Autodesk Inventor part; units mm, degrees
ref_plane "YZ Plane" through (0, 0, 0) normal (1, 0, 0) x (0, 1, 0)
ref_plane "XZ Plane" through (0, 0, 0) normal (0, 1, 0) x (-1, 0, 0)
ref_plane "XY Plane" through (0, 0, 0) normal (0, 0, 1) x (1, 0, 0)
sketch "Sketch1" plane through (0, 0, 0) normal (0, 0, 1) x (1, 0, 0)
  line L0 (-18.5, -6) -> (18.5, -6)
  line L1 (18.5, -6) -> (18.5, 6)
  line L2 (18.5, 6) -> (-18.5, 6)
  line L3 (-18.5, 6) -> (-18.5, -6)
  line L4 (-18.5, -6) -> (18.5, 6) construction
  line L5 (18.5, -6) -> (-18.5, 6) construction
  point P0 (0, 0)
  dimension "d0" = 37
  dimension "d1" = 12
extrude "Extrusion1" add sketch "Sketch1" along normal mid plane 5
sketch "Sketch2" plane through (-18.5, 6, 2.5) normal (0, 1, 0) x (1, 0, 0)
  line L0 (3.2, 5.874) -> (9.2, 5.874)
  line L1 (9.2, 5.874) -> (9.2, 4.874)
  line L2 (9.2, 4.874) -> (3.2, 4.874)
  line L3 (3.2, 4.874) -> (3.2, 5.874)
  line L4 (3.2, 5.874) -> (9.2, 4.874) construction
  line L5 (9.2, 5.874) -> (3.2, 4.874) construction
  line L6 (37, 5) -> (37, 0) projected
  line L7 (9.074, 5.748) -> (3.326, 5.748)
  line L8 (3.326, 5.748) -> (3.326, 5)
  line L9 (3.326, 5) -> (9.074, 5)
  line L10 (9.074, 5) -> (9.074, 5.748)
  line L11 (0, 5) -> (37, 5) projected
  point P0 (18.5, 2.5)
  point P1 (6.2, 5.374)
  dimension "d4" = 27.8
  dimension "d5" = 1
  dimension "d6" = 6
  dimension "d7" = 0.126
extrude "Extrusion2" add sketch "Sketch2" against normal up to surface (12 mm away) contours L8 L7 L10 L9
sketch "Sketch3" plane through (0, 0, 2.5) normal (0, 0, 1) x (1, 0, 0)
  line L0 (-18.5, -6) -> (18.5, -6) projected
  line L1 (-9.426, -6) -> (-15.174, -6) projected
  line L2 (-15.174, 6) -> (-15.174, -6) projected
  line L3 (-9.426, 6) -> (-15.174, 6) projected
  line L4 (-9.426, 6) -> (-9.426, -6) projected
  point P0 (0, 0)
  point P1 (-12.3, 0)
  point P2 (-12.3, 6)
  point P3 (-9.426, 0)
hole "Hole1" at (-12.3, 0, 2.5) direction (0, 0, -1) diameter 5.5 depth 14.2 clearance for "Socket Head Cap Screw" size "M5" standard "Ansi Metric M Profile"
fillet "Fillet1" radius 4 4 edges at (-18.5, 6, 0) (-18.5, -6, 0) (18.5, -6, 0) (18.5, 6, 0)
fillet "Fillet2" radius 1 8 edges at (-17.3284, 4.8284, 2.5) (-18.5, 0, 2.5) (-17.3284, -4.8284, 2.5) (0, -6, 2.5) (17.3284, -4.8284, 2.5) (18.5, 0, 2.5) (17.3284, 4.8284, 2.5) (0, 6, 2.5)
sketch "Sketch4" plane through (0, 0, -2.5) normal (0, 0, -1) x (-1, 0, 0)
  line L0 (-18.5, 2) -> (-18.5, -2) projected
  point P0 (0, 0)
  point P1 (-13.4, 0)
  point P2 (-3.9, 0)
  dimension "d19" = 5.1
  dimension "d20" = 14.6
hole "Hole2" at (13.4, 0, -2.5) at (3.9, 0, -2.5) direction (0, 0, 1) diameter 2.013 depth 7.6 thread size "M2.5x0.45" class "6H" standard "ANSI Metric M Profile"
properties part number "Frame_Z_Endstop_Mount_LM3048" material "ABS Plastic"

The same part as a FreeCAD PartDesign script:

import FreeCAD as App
import Part
import Sketcher
from FreeCAD import Vector


def edges_at(feature, points):
    """Names of the edges that pass closest to the given points."""
    edges = feature.Shape.Edges
    near = lambda p: min(range(len(edges)), key=lambda i: edges[i].distToShape(Part.Vertex(*p))[0])
    return sorted({f"Edge{near(p) + 1}" for p in points})

doc = App.newDocument("Part")
body = doc.addObject("PartDesign::Body", "Body")

# Sketch on XY plane
sketch1 = doc.addObject("Sketcher::SketchObject", "Sketch")
body.addObject(sketch1)
sketch1.AttachmentSupport = (doc.XY_Plane, [""])
sketch1.MapMode = "FlatFace"
sketch1.addGeometry([
    Part.LineSegment(Vector(-18.5, 6, 0), Vector(-18.5, -6, 0)),
    Part.LineSegment(Vector(-18.5, -6, 0), Vector(18.5, -6, 0)),
    Part.LineSegment(Vector(18.5, -6, 0), Vector(18.5, 6, 0)),
    Part.LineSegment(Vector(18.5, 6, 0), Vector(-18.5, 6, 0)),
], False)
sketch1.addConstraint([
    Sketcher.Constraint("Coincident", 0, 2, 1, 1),
    Sketcher.Constraint("Coincident", 1, 2, 2, 1),
    Sketcher.Constraint("Coincident", 2, 2, 3, 1),
    Sketcher.Constraint("Coincident", 3, 2, 0, 1),
    Sketcher.Constraint("Vertical", 0),
    Sketcher.Constraint("Horizontal", 1),
    Sketcher.Constraint("Vertical", 2),
    Sketcher.Constraint("Horizontal", 3),
    Sketcher.Constraint("Symmetric", 0, 2, 2, 2, -1, 1),
    Sketcher.Constraint("DistanceX", 1, 1, 1, 2, 37.0),
    Sketcher.Constraint("DistanceY", 0, 2, 0, 1, 12.0),
])
pad1 = doc.addObject("PartDesign::Pad", "Pad")
body.addObject(pad1)
pad1.Profile = sketch1
pad1.Length = 5
pad1.Midplane = True

# Sketch on XZ plane
sketch2 = doc.addObject("Sketcher::SketchObject", "Sketch001")
body.addObject(sketch2)
sketch2.AttachmentSupport = (doc.XZ_Plane, [""])
sketch2.MapMode = "FlatFace"
sketch2.AttachmentOffset = App.Placement(Vector(0, 0, -6), App.Rotation())
sketch2.addGeometry([
    Part.LineSegment(Vector(-15.174, -3.248, 0), Vector(-15.174, -2.5, 0)),
    Part.LineSegment(Vector(-15.174, -2.5, 0), Vector(-9.426, -2.5, 0)),
    Part.LineSegment(Vector(-9.426, -2.5, 0), Vector(-9.426, -3.248, 0)),
    Part.LineSegment(Vector(-9.426, -3.248, 0), Vector(-15.174, -3.248, 0)),
], False)
sketch2.addConstraint([
    Sketcher.Constraint("Coincident", 0, 2, 1, 1),
    Sketcher.Constraint("Coincident", 1, 2, 2, 1),
    Sketcher.Constraint("Coincident", 2, 2, 3, 1),
    Sketcher.Constraint("Coincident", 3, 2, 0, 1),
    Sketcher.Constraint("Vertical", 0),
    Sketcher.Constraint("Horizontal", 1),
    Sketcher.Constraint("Vertical", 2),
    Sketcher.Constraint("Horizontal", 3),
    Sketcher.Constraint("DistanceY", 0, 2, -1, 1, 2.5),
    Sketcher.Constraint("DistanceX", 1, 1, 1, 2, 5.748),
    Sketcher.Constraint("DistanceY", 0, 1, 0, 2, 0.748),
    Sketcher.Constraint("DistanceX", 0, 2, -1, 1, 15.174),
])
pad2 = doc.addObject("PartDesign::Pad", "Pad001")
body.addObject(pad2)
pad2.Profile = sketch2
pad2.Length = 12

# Sketch on XY plane
sketch3 = doc.addObject("Sketcher::SketchObject", "Sketch002")
body.addObject(sketch3)
sketch3.AttachmentSupport = (doc.XY_Plane, [""])
sketch3.MapMode = "FlatFace"
sketch3.AttachmentOffset = App.Placement(Vector(0, 0, 2.5), App.Rotation())
sketch3.addGeometry(Part.Circle(Vector(-12.3, 0, 0), Vector(0, 0, 1), 2.75), False)
sketch3.addConstraint([
    Sketcher.Constraint("PointOnObject", 0, 3, -1),
    Sketcher.Constraint("Diameter", 0, 5.5),
    Sketcher.Constraint("DistanceX", 0, 3, -1, 1, 12.3),
])
doc.recompute()
hole = doc.addObject("PartDesign::Hole", "Hole")
body.addObject(hole)
hole.Profile = sketch3
hole.ThreadType = "None"
hole.Diameter = 5.5
hole.DepthType = "Dimension"
hole.Depth = 14.2
hole.DrillPoint = "Flat"
doc.recompute()

fillet = doc.addObject("PartDesign::Fillet", "Fillet")
body.addObject(fillet)
fillet.Base = (hole, edges_at(hole, [
    (-18.5, 6, 0),
    (-18.5, -6, 0),
    (18.5, -6, 0),
    (18.5, 6, 0),
]))
fillet.Radius = 4
doc.recompute()

fillet2 = doc.addObject("PartDesign::Fillet", "Fillet001")
body.addObject(fillet2)
fillet2.Base = (fillet, edges_at(fillet, [
    (-17.328, 4.828, 2.5),
    (-18.5, 0, 2.5),
    (-17.328, -4.828, 2.5),
    (0, -6, 2.5),
    (17.328, -4.828, 2.5),
    (18.5, 0, 2.5),
    (17.328, 4.828, 2.5),
    (0, 6, 2.5),
]))
fillet2.Radius = 1

# Sketch on XY plane
sketch4 = doc.addObject("Sketcher::SketchObject", "Sketch003")
body.addObject(sketch4)
sketch4.AttachmentSupport = (doc.XY_Plane, [""])
sketch4.MapMode = "FlatFace"
sketch4.AttachmentOffset = App.Placement(Vector(0, 0, -2.5), App.Rotation())
sketch4.addGeometry([
    Part.Circle(Vector(13.4, 0, 0), Vector(0, 0, 1), 1.0065),
    Part.Circle(Vector(3.9, 0, 0), Vector(0, 0, 1), 1.0065),
], False)
sketch4.addConstraint([
    Sketcher.Constraint("Equal", 0, 1),
    Sketcher.Constraint("PointOnObject", 0, 3, -1),
    Sketcher.Constraint("PointOnObject", 1, 3, -1),
    Sketcher.Constraint("Diameter", 0, 2.013),
    Sketcher.Constraint("DistanceX", -1, 1, 0, 3, 13.4),
    Sketcher.Constraint("DistanceX", -1, 1, 1, 3, 3.9),
])
doc.recompute()
hole2 = doc.addObject("PartDesign::Hole", "Hole001")
body.addObject(hole2)
hole2.Profile = sketch4
hole2.ThreadType = "None"
hole2.Diameter = 2.013
hole2.DepthType = "Dimension"
hole2.Depth = 7.6
hole2.DrillPoint = "Flat"
hole2.Reversed = True

doc.recompute()
